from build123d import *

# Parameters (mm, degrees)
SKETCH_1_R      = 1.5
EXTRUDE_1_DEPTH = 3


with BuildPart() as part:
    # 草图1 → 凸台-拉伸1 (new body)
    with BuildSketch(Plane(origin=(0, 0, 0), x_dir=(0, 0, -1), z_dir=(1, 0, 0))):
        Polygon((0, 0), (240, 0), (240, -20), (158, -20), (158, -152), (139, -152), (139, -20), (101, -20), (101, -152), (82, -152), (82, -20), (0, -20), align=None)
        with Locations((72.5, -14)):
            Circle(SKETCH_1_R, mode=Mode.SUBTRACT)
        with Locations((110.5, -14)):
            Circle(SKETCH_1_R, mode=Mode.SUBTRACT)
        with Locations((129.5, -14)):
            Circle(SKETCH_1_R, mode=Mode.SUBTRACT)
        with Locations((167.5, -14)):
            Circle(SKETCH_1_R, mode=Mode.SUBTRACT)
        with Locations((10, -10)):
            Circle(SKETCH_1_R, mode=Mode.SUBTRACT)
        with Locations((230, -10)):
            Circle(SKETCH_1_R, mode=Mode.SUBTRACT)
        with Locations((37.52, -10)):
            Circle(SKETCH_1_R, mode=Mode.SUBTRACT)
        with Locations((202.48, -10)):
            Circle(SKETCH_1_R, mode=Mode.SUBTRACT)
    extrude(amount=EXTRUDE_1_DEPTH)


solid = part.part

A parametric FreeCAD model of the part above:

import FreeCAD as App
import Part
import Sketcher

V = App.Vector
Q = App.Units.Quantity

doc = App.newDocument("Part")
body = doc.addObject("PartDesign::Body", "Body")

sketch1 = doc.addObject("Sketcher::SketchObject", "Sketch")
body.addObject(sketch1)
sketch1.AttachmentSupport = (doc.YZ_Plane, [""])
sketch1.MapMode = "FlatFace"
sketch1.addGeometry([
    Part.LineSegment(V(0, -240, 0), V(0, 0, 0)),
    Part.LineSegment(V(0, 0, 0), V(-20, 0, 0)),
    Part.LineSegment(V(-20, 0, 0), V(-20, -82, 0)),
    Part.LineSegment(V(-20, -82, 0), V(-152, -82, 0)),
    Part.LineSegment(V(-152, -82, 0), V(-152, -101, 0)),
    Part.LineSegment(V(-152, -101, 0), V(-20, -101, 0)),
    Part.LineSegment(V(-20, -101, 0), V(-20, -139, 0)),
    Part.LineSegment(V(-20, -139, 0), V(-152, -139, 0)),
    Part.LineSegment(V(-152, -139, 0), V(-152, -158, 0)),
    Part.LineSegment(V(-152, -158, 0), V(-20, -158, 0)),
    Part.LineSegment(V(-20, -158, 0), V(-20, -240, 0)),
    Part.LineSegment(V(-20, -240, 0), V(0, -240, 0)),
    Part.Circle(V(-14, -167.5, 0), V(0, 0, 1), 1.5),
    Part.Circle(V(-14, -129.5, 0), V(0, 0, 1), 1.5),
    Part.Circle(V(-14, -110.5, 0), V(0, 0, 1), 1.5),
    Part.Circle(V(-14, -72.5, 0), V(0, 0, 1), 1.5),
    Part.Circle(V(-10, -230, 0), V(0, 0, 1), 1.5),
    Part.Circle(V(-10, -202.5, 0), V(0, 0, 1), 1.5),
    Part.Circle(V(-10, -37.5, 0), V(0, 0, 1), 1.5),
    Part.Circle(V(-10, -10, 0), V(0, 0, 1), 1.5),
], False)
sketch1.addConstraint([
    Sketcher.Constraint("Coincident", 0, 2, 1, 1),
    Sketcher.Constraint("Coincident", 1, 2, 2, 1),
    Sketcher.Constraint("Coincident", 2, 2, 3, 1),
    Sketcher.Constraint("Coincident", 3, 2, 4, 1),
    Sketcher.Constraint("Coincident", 4, 2, 5, 1),
    Sketcher.Constraint("Coincident", 5, 2, 6, 1),
    Sketcher.Constraint("Coincident", 6, 2, 7, 1),
    Sketcher.Constraint("Coincident", 7, 2, 8, 1),
    Sketcher.Constraint("Coincident", 8, 2, 9, 1),
    Sketcher.Constraint("Coincident", 9, 2, 10, 1),
    Sketcher.Constraint("Coincident", 10, 2, 11, 1),
    Sketcher.Constraint("Coincident", 11, 2, 0, 1),
    Sketcher.Constraint("Vertical", 0),
    Sketcher.Constraint("Horizontal", 1),
    Sketcher.Constraint("Vertical", 2),
    Sketcher.Constraint("Horizontal", 3),
    Sketcher.Constraint("Vertical", 4),
    Sketcher.Constraint("Horizontal", 5),
    Sketcher.Constraint("Vertical", 6),
    Sketcher.Constraint("Horizontal", 7),
    Sketcher.Constraint("Vertical", 8),
    Sketcher.Constraint("Horizontal", 9),
    Sketcher.Constraint("Vertical", 10),
    Sketcher.Constraint("Horizontal", 11),
    Sketcher.Constraint("Coincident", 0, 2, -1, 1),
    Sketcher.Constraint("Equal", 12, 13),
    Sketcher.Constraint("Equal", 13, 14),
    Sketcher.Constraint("Equal", 14, 15),
    Sketcher.Constraint("Equal", 15, 16),
    Sketcher.Constraint("Equal", 16, 17),
    Sketcher.Constraint("Equal", 17, 18),
    Sketcher.Constraint("Equal", 18, 19),
    Sketcher.Constraint("Vertical", 12, 3, 13, 3),
    Sketcher.Constraint("Vertical", 13, 3, 14, 3),
    Sketcher.Constraint("Vertical", 14, 3, 15, 3),
    Sketcher.Constraint("Vertical", 16, 3, 17, 3),
    Sketcher.Constraint("Vertical", 17, 3, 18, 3),
    Sketcher.Constraint("Vertical", 18, 3, 19, 3),
    Sketcher.Constraint("Vertical", 2, 2, 5, 2),
    Sketcher.Constraint("Vertical", 4, 2, 7, 2),
    Sketcher.Constraint("Vertical", 6, 2, 9, 2),
    Sketcher.Constraint("Equal", 4, 8),
    Sketcher.Constraint("Equal", 2, 10),
    Sketcher.Constraint("Diameter", 12, Q("3 mm")),
    Sketcher.Constraint("DistanceX", 1, 2, 1, 1, Q("20 mm")),
    Sketcher.Constraint("DistanceX", 3, 2, 3, 1, Q("132 mm")),
    Sketcher.Constraint("DistanceY", 0, 1, 0, 2, Q("240 mm")),
    Sketcher.Constraint("DistanceY", 2, 2, 2, 1, Q("82 mm")),
    Sketcher.Constraint("DistanceY", 4, 2, 4, 1, Q("19 mm")),
    Sketcher.Constraint("DistanceX", 12, 3, -1, 1, Q("14 mm")),
    Sketcher.Constraint("DistanceX", 16, 3, -1, 1, Q("10 mm")),
    Sketcher.Constraint("DistanceY", 16, 3, -1, 1, Q("230 mm")),
    Sketcher.Constraint("DistanceY", 19, 3, -1, 1, Q("10 mm")),
    Sketcher.Constraint("DistanceY", 12, 3, 13, 3, Q("38 mm")),
    Sketcher.Constraint("DistanceY", 13, 3, 14, 3, Q("19 mm")),
    Sketcher.Constraint("DistanceY", 14, 3, 15, 3, Q("38 mm")),
    Sketcher.Constraint("DistanceY", 12, 3, -1, 1, Q("167.5 mm")),
    Sketcher.Constraint("DistanceY", 17, 3, -1, 1, Q("202.48 mm")),
    Sketcher.Constraint("DistanceY", 18, 3, -1, 1, Q("37.52 mm")),
])
pad1 = doc.addObject("PartDesign::Pad", "Pad")
body.addObject(pad1)
pad1.Profile = sketch1
pad1.Length = 3

doc.recompute()
